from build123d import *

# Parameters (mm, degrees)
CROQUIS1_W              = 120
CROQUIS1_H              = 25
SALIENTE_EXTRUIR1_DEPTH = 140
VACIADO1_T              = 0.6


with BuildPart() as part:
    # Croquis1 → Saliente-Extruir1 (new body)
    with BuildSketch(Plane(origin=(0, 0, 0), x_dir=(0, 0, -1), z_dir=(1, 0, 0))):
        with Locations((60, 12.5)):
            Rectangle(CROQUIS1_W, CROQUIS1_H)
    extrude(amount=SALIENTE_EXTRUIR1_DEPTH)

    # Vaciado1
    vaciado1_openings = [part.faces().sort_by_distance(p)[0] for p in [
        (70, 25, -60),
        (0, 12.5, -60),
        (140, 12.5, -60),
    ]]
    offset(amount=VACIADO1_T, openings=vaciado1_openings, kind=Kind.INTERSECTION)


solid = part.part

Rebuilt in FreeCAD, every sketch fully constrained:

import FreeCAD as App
import Part
import Sketcher


def faces_at(feature, points):
    """Names of the faces that lie closest to the given points."""
    faces = feature.Shape.Faces
    near = lambda p: min(range(len(faces)), key=lambda i: faces[i].distToShape(Part.Vertex(*p))[0])
    return sorted({f"Face{near(p) + 1}" for p in points})


def add_polygon(sketch, points):
    """Adds a closed chain of lines whose ends are joined by coincident constraints."""
    first, n = sketch.GeometryCount, len(points)
    for a, b in zip(points, points[1:] + points[:1]):
        sketch.addGeometry(Part.LineSegment(App.Vector(*a, 0), App.Vector(*b, 0)), False)
    for i in range(n):
        sketch.addConstraint(Sketcher.Constraint("Coincident", first + i, 2, first + (i + 1) % n, 1))

doc = App.newDocument("Part")
params = doc.addObject("Spreadsheet::Sheet", "Params")
for row, (alias, value) in enumerate([
    ("sketch1_width", "25 mm"),
    ("sketch1_height", "120 mm"),
    ("pad1_length", "140 mm"),
    ("thickness_wall", "0.6 mm"),
], start=1):
    params.set(f"A{row}", alias)
    params.set(f"B{row}", "=" + value)
    params.setAlias(f"B{row}", alias)

body = doc.addObject("PartDesign::Body", "Body")

sketch1 = body.newObject("Sketcher::SketchObject", "Sketch")
sketch1.AttachmentSupport = (doc.getObject("YZ_Plane"), [""])
sketch1.MapMode = "FlatFace"
add_polygon(sketch1, [(25, 0), (0, 0), (0, -120), (25, -120)])
sketch1.addConstraint([
    Sketcher.Constraint("Horizontal", 0),
    Sketcher.Constraint("Vertical", 1),
    Sketcher.Constraint("Horizontal", 2),
    Sketcher.Constraint("Vertical", 3),
    Sketcher.Constraint("Coincident", 0, 2, -1, 1),
    Sketcher.Constraint("DistanceX", 0, 2, 0, 1, 25.0),
    Sketcher.Constraint("DistanceY", 1, 2, 1, 1, 120.0),
])
sketch1.setExpression("Constraints[9]", "Params.sketch1_width")
sketch1.setExpression("Constraints[10]", "Params.sketch1_height")
pad1 = body.newObject("PartDesign::Pad", "Pad")
pad1.Profile = sketch1
pad1.setExpression("Length", "Params.pad1_length")
doc.recompute()

thickness = body.newObject("PartDesign::Thickness", "Thickness")
thickness.Base = (pad1, faces_at(pad1, [(70, 25, -60), (0, 12.5, -60), (140, 12.5, -60)]))
thickness.setExpression("Value", "Params.thickness_wall")
thickness.Reversed = False
thickness.Join = "Intersection"

doc.recompute()
